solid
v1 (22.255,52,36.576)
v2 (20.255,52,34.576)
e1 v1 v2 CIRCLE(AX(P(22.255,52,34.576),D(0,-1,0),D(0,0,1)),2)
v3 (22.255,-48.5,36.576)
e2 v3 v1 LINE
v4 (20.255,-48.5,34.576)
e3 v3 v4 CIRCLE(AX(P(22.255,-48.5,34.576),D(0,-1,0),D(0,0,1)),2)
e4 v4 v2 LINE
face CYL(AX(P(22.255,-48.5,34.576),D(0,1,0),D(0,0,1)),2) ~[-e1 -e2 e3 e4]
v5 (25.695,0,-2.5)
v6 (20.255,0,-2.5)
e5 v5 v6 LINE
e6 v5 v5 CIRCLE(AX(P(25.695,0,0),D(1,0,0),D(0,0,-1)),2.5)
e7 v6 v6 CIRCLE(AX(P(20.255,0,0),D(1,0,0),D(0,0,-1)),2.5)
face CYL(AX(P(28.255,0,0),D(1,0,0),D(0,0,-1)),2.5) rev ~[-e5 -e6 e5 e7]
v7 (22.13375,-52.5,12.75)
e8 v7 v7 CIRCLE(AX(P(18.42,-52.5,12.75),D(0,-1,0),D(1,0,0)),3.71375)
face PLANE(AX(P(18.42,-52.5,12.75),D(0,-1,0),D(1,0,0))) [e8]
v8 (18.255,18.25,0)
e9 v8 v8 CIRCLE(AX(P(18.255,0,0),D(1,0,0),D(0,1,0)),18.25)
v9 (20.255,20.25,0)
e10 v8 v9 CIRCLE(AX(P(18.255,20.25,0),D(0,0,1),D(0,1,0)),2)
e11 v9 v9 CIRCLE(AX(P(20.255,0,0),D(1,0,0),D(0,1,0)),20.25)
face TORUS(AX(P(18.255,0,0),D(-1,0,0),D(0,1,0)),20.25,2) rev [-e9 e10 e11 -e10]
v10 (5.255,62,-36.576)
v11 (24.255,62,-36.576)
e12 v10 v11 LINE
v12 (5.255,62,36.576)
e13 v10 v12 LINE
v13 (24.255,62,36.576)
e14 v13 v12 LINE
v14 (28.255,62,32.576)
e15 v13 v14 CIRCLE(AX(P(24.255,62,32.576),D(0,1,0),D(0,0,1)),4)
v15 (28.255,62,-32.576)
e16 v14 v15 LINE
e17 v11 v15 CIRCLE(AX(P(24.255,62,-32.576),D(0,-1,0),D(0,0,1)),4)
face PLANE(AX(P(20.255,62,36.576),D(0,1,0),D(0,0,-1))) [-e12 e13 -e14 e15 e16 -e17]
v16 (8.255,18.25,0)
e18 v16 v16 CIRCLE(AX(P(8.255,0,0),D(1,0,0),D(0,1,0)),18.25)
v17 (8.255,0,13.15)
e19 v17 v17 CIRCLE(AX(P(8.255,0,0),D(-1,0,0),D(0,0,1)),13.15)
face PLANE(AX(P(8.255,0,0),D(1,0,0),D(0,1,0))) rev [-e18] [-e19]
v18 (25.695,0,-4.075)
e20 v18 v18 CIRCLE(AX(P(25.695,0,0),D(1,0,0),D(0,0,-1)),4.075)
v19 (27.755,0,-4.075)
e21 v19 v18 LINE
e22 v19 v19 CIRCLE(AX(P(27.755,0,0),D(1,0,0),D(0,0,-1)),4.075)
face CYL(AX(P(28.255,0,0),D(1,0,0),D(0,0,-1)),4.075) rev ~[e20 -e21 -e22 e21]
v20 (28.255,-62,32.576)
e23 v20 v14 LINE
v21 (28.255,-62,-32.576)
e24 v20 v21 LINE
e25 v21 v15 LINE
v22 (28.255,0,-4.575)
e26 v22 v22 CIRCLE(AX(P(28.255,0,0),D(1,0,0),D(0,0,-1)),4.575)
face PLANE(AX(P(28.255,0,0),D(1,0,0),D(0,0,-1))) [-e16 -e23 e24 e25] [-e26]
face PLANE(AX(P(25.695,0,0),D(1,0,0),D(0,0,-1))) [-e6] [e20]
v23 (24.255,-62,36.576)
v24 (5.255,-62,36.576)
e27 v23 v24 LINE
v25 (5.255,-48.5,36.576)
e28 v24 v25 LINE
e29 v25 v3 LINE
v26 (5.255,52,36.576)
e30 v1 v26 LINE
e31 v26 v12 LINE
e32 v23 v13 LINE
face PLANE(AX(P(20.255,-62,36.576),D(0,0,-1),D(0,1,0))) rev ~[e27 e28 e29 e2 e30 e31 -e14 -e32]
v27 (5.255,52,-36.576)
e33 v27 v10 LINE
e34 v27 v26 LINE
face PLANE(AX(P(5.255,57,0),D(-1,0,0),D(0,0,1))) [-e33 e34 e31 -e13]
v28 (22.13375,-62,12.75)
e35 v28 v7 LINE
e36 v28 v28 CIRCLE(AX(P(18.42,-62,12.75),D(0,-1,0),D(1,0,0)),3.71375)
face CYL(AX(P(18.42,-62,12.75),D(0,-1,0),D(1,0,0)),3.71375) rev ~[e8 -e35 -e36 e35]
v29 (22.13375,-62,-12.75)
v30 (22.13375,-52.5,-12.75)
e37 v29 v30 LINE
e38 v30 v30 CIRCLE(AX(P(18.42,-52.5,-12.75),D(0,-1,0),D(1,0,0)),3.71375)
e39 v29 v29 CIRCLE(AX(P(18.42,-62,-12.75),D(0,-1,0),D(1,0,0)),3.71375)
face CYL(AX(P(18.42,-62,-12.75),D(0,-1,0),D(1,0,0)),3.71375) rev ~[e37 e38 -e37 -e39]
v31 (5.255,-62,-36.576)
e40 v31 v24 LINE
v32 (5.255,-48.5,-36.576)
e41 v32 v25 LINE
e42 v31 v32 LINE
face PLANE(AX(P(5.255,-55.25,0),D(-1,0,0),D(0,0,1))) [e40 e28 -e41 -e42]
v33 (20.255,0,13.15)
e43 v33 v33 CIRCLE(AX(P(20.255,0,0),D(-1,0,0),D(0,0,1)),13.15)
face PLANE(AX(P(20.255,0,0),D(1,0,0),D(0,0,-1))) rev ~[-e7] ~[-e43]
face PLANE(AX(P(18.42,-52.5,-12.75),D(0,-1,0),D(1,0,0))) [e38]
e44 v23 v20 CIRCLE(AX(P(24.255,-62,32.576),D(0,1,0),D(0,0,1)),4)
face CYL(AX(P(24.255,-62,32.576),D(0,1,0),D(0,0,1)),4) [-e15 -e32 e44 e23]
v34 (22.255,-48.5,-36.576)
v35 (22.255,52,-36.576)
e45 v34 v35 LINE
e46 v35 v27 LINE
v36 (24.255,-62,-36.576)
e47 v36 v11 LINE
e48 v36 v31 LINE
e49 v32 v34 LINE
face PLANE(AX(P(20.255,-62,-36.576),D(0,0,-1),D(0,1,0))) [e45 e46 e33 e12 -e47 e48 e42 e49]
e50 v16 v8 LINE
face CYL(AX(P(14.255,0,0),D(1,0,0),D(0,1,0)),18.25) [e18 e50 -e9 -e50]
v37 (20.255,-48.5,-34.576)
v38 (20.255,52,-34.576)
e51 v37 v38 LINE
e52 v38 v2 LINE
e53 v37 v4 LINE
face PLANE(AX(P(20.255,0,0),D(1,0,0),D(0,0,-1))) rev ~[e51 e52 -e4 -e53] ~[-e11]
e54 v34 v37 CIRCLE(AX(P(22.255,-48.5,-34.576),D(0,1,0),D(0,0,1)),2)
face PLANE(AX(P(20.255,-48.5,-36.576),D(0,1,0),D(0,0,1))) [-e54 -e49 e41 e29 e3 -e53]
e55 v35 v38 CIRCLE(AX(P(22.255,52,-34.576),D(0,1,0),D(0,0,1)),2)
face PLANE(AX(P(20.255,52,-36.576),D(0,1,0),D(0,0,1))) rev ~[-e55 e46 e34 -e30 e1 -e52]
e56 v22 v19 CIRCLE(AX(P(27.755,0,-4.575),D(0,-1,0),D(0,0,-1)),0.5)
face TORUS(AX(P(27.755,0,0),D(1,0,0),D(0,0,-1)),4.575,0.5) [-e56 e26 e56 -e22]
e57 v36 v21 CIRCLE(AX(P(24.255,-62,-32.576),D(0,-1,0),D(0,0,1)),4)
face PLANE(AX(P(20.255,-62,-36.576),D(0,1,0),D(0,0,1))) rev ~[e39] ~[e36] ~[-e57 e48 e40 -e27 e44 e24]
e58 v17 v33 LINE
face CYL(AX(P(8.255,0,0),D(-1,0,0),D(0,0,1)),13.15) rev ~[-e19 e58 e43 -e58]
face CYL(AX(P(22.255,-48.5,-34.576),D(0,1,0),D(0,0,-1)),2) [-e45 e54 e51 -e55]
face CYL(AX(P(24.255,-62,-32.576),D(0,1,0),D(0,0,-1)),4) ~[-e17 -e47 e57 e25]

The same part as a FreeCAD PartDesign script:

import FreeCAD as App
import Part
import Sketcher


def edges_at(feature, points):
    """Names of the edges that pass closest to the given points."""
    edges = feature.Shape.Edges
    near = lambda p: min(range(len(edges)), key=lambda i: edges[i].distToShape(Part.Vertex(*p))[0])
    return sorted({f"Edge{near(p) + 1}" for p in points})


def add_polygon(sketch, points):
    """Adds a closed chain of lines whose ends are joined by coincident constraints."""
    first, n = sketch.GeometryCount, len(points)
    for a, b in zip(points, points[1:] + points[:1]):
        sketch.addGeometry(Part.LineSegment(App.Vector(*a, 0), App.Vector(*b, 0)), False)
    for i in range(n):
        sketch.addConstraint(Sketcher.Constraint("Coincident", first + i, 2, first + (i + 1) % n, 1))

doc = App.newDocument("Part")
params = doc.addObject("Spreadsheet::Sheet", "Params")
for row, (alias, value) in enumerate([
    ("sketch1_width", "12 mm"),
    ("sketch1_height", "18.25 mm"),
    ("revolution_angle", "360 deg"),
    ("pocket1_length", "8.5725 mm"),
    ("sketch3_diameter", "26.3 mm"),
    ("pocket2_length", "12 mm"),
    ("sketch4_width", "124 mm"),
    ("pad1_length", "8 mm"),
    ("fillet_radius", "4 mm"),
    ("sketch5_diameter", "8.15 mm"),
    ("pocket3_length", "2.56 mm"),
    ("sketch6_diameter", "5 mm"),
    ("pocket4_length", "8 mm"),
    ("fillet2_radius", "0.5 mm"),
    ("sketch7_width", "10 mm"),
    ("sketch7_width2", "13.5 mm"),
    ("pad2_length", "15 mm"),
    ("fillet3_radius", "2 mm"),
    ("pocket5_length", "9.5 mm"),
], start=1):
    params.set(f"A{row}", alias)
    params.set(f"B{row}", "=" + value)
    params.setAlias(f"B{row}", alias)

body = doc.addObject("PartDesign::Body", "Body")

# Sketch on XY plane
sketch1 = body.newObject("Sketcher::SketchObject", "Sketch")
sketch1.AttachmentSupport = (doc.getObject("XY_Plane"), [""])
sketch1.MapMode = "FlatFace"
add_polygon(sketch1, [(8, 18), (8, 0), (20, 0), (20, 18)])  # lines 0-3
sketch1.addConstraint(Sketcher.Constraint("Vertical", 0))
sketch1.addConstraint(Sketcher.Constraint("Horizontal", 1))
sketch1.addConstraint(Sketcher.Constraint("Vertical", 2))
sketch1.addConstraint(Sketcher.Constraint("Horizontal", 3))
sketch1.addConstraint(Sketcher.Constraint("PointOnObject", 0, 2, -1))
sketch1.addConstraint(Sketcher.Constraint("DistanceX", 1, 1, 1, 2, 12.0))
sketch1.addConstraint(Sketcher.Constraint("DistanceY", 0, 2, 0, 1, 18.25))
sketch1.addConstraint(Sketcher.Constraint("DistanceX", -1, 1, 0, 2, 8.255))
sketch1.setExpression("Constraints[9]", "Params.sketch1_width")
sketch1.setExpression("Constraints[10]", "Params.sketch1_height")
revolution = body.newObject("PartDesign::Revolution", "Revolution")
revolution.Profile = sketch1
revolution.ReferenceAxis = (sketch1, ["H_Axis"])
revolution.setExpression("Angle", "Params.revolution_angle")

# Sketch on YZ plane
sketch2 = body.newObject("Sketcher::SketchObject", "Sketch001")
sketch2.AttachmentSupport = (doc.getObject("YZ_Plane"), [""])
sketch2.MapMode = "FlatFace"
sketch2.AttachmentOffset = App.Placement(App.Vector(0, 0, 8.255), App.Rotation())
sketch2.addGeometry(Part.Circle(App.Vector(0, 0, 0), App.Vector(0, 0, 1), 3.7), False)
sketch2.addConstraint(Sketcher.Constraint("Coincident", 0, 3, -1, 1))
sketch2.addConstraint(Sketcher.Constraint("Diameter", 0, 7.429))
pocket1 = body.newObject("PartDesign::Pocket", "Pocket")
pocket1.Profile = sketch2
pocket1.setExpression("Length", "Params.pocket1_length")
pocket1.Reversed = True

# Sketch on YZ plane
sketch3 = body.newObject("Sketcher::SketchObject", "Sketch002")
sketch3.AttachmentSupport = (doc.getObject("YZ_Plane"), [""])
sketch3.MapMode = "FlatFace"
sketch3.AttachmentOffset = App.Placement(App.Vector(0, 0, 8.255), App.Rotation())
sketch3.addGeometry(Part.Circle(App.Vector(0, 0, 0), App.Vector(0, 0, 1), 13), False)
sketch3.addConstraint(Sketcher.Constraint("Coincident", 0, 3, -1, 1))
sketch3.addConstraint(Sketcher.Constraint("Diameter", 0, 26.3))
sketch3.setExpression("Constraints[1]", "Params.sketch3_diameter")
pocket2 = body.newObject("PartDesign::Pocket", "Pocket001")
pocket2.Profile = sketch3
pocket2.setExpression("Length", "Params.pocket2_length")
pocket2.Reversed = True
body2 = doc.addObject("PartDesign::Body", "Body001")

# Sketch on YZ plane
sketch4 = body2.newObject("Sketcher::SketchObject", "Sketch003")
sketch4.AttachmentSupport = (doc.getObject("YZ_Plane001"), [""])
sketch4.MapMode = "FlatFace"
sketch4.AttachmentOffset = App.Placement(App.Vector(0, 0, 20.255), App.Rotation())
add_polygon(sketch4, [(62, 37), (-62, 37), (-62, -37), (62, -37)])  # lines 0-3
sketch4.addConstraint(Sketcher.Constraint("Horizontal", 0))
sketch4.addConstraint(Sketcher.Constraint("Vertical", 1))
sketch4.addConstraint(Sketcher.Constraint("Horizontal", 2))
sketch4.addConstraint(Sketcher.Constraint("Vertical", 3))
sketch4.addConstraint(Sketcher.Constraint("Symmetric", 0, 2, 2, 2, -1, 1))
sketch4.addConstraint(Sketcher.Constraint("DistanceX", 0, 2, 0, 1, 124.0))
sketch4.addConstraint(Sketcher.Constraint("DistanceY", 1, 2, 1, 1, 73.152))
sketch4.setExpression("Constraints[9]", "Params.sketch4_width")
pad1 = body2.newObject("PartDesign::Pad", "Pad")
pad1.Profile = sketch4
pad1.setExpression("Length", "Params.pad1_length")
doc.recompute()

fillet = body2.newObject("PartDesign::Fillet", "Fillet")
fillet.Base = (pad1, edges_at(pad1, [(28.255, 0, -36.576), (28.255, 0, 36.576)]))
fillet.setExpression("Radius", "Params.fillet_radius")

# Sketch on YZ plane
sketch5 = body2.newObject("Sketcher::SketchObject", "Sketch004")
sketch5.AttachmentSupport = (doc.getObject("YZ_Plane001"), [""])
sketch5.MapMode = "FlatFace"
sketch5.AttachmentOffset = App.Placement(App.Vector(0, 0, 28.255), App.Rotation())
sketch5.addGeometry(Part.Circle(App.Vector(0, 0, 0), App.Vector(0, 0, 1), 4.1), False)
sketch5.addConstraint(Sketcher.Constraint("Coincident", 0, 3, -1, 1))
sketch5.addConstraint(Sketcher.Constraint("Diameter", 0, 8.15))
sketch5.setExpression("Constraints[1]", "Params.sketch5_diameter")
pocket3 = body2.newObject("PartDesign::Pocket", "Pocket002")
pocket3.Profile = sketch5
pocket3.setExpression("Length", "Params.pocket3_length")

# Sketch on YZ plane
sketch6 = body2.newObject("Sketcher::SketchObject", "Sketch005")
sketch6.AttachmentSupport = (doc.getObject("YZ_Plane001"), [""])
sketch6.MapMode = "FlatFace"
sketch6.AttachmentOffset = App.Placement(App.Vector(0, 0, 28.255), App.Rotation())
sketch6.addGeometry(Part.Circle(App.Vector(0, 0, 0), App.Vector(0, 0, 1), 2.5), False)
sketch6.addConstraint(Sketcher.Constraint("Coincident", 0, 3, -1, 1))
sketch6.addConstraint(Sketcher.Constraint("Diameter", 0, 5.0))
sketch6.setExpression("Constraints[1]", "Params.sketch6_diameter")
pocket4 = body2.newObject("PartDesign::Pocket", "Pocket003")
pocket4.Profile = sketch6
pocket4.setExpression("Length", "Params.pocket4_length")
doc.recompute()

fillet2 = body2.newObject("PartDesign::Fillet", "Fillet001")
fillet2.Base = (pocket4, edges_at(pocket4, [(28.255, 0, 4.075)]))
fillet2.setExpression("Radius", "Params.fillet2_radius")
doc.recompute()

boolean = body.newObject("PartDesign::Boolean", "Boolean")
boolean.Type = "Fuse"
boolean.addObjects([body2])

# Sketch on YZ plane
sketch7 = body.newObject("Sketcher::SketchObject", "Sketch006")
sketch7.AttachmentSupport = (doc.getObject("YZ_Plane"), [""])
sketch7.MapMode = "FlatFace"
sketch7.AttachmentOffset = App.Placement(App.Vector(0, 0, 20.255), App.Rotation())
add_polygon(sketch7, [(-48, -37), (-62, -37), (-62, 37), (-48, 37)])  # lines 0-3
add_polygon(sketch7, [(62, -37), (52, -37), (52, 37), (62, 37)])  # lines 4-7
sketch7.addConstraint(Sketcher.Constraint("Horizontal", 0))
sketch7.addConstraint(Sketcher.Constraint("Vertical", 1))
sketch7.addConstraint(Sketcher.Constraint("Horizontal", 2))
sketch7.addConstraint(Sketcher.Constraint("Vertical", 3))
sketch7.addConstraint(Sketcher.Constraint("Horizontal", 4))
sketch7.addConstraint(Sketcher.Constraint("Vertical", 5))
sketch7.addConstraint(Sketcher.Constraint("Horizontal", 6))
sketch7.addConstraint(Sketcher.Constraint("Vertical", 7))
sketch7.addConstraint(Sketcher.Constraint("Symmetric", 0, 2, 6, 2, -1, 1))
sketch7.addConstraint(Sketcher.Constraint("Horizontal", 3, 2, 4, 2))
sketch7.addConstraint(Sketcher.Constraint("Horizontal", 2, 2, 5, 2))
sketch7.addConstraint(Sketcher.Constraint("DistanceX", 4, 2, 4, 1, 10.0))
sketch7.addConstraint(Sketcher.Constraint("DistanceX", 0, 2, 0, 1, 13.5))
sketch7.addConstraint(Sketcher.Constraint("DistanceX", 0, 2, -1, 1, 62.0))
sketch7.addConstraint(Sketcher.Constraint("DistanceY", 1, 1, 1, 2, 73.152))
sketch7.setExpression("Constraints[19]", "Params.sketch7_width")
sketch7.setExpression("Constraints[20]", "Params.sketch7_width2")
pad2 = body.newObject("PartDesign::Pad", "Pad001")
pad2.Profile = sketch7
pad2.setExpression("Length", "Params.pad2_length")
pad2.Reversed = True
doc.recompute()

fillet3 = body.newObject("PartDesign::Fillet", "Fillet002")
fillet3.Base = (pad2, edges_at(pad2, [(20.255, -18.25, 0), (20.255, 1.75, 36.576), (20.255, 1.75, -36.576)]))
fillet3.setExpression("Radius", "Params.fillet3_radius")

# Sketch on XZ plane
sketch8 = body.newObject("Sketcher::SketchObject", "Sketch007")
sketch8.AttachmentSupport = (doc.getObject("XZ_Plane"), [""])
sketch8.MapMode = "FlatFace"
sketch8.AttachmentOffset = App.Placement(App.Vector(0, 0, 62), App.Rotation())
sketch8.addGeometry(Part.Circle(App.Vector(18.4, 12.8, 0), App.Vector(0, 0, 1), 3.7), False)
sketch8.addGeometry(Part.Circle(App.Vector(18.4, -12.8, 0), App.Vector(0, 0, 1), 3.7), False)
sketch8.addConstraint(Sketcher.Constraint("Equal", 0, 1))
sketch8.addConstraint(Sketcher.Constraint("Symmetric", 0, 3, 1, 3, -1))
sketch8.addConstraint(Sketcher.Constraint("Diameter", 0, 7.4275))
sketch8.addConstraint(Sketcher.Constraint("DistanceY", 1, 3, 0, 3, 25.5))
sketch8.addConstraint(Sketcher.Constraint("DistanceX", -1, 1, 0, 3, 18.42))
pocket5 = body.newObject("PartDesign::Pocket", "Pocket004")
pocket5.Profile = sketch8
pocket5.setExpression("Length", "Params.pocket5_length")

doc.recompute()
